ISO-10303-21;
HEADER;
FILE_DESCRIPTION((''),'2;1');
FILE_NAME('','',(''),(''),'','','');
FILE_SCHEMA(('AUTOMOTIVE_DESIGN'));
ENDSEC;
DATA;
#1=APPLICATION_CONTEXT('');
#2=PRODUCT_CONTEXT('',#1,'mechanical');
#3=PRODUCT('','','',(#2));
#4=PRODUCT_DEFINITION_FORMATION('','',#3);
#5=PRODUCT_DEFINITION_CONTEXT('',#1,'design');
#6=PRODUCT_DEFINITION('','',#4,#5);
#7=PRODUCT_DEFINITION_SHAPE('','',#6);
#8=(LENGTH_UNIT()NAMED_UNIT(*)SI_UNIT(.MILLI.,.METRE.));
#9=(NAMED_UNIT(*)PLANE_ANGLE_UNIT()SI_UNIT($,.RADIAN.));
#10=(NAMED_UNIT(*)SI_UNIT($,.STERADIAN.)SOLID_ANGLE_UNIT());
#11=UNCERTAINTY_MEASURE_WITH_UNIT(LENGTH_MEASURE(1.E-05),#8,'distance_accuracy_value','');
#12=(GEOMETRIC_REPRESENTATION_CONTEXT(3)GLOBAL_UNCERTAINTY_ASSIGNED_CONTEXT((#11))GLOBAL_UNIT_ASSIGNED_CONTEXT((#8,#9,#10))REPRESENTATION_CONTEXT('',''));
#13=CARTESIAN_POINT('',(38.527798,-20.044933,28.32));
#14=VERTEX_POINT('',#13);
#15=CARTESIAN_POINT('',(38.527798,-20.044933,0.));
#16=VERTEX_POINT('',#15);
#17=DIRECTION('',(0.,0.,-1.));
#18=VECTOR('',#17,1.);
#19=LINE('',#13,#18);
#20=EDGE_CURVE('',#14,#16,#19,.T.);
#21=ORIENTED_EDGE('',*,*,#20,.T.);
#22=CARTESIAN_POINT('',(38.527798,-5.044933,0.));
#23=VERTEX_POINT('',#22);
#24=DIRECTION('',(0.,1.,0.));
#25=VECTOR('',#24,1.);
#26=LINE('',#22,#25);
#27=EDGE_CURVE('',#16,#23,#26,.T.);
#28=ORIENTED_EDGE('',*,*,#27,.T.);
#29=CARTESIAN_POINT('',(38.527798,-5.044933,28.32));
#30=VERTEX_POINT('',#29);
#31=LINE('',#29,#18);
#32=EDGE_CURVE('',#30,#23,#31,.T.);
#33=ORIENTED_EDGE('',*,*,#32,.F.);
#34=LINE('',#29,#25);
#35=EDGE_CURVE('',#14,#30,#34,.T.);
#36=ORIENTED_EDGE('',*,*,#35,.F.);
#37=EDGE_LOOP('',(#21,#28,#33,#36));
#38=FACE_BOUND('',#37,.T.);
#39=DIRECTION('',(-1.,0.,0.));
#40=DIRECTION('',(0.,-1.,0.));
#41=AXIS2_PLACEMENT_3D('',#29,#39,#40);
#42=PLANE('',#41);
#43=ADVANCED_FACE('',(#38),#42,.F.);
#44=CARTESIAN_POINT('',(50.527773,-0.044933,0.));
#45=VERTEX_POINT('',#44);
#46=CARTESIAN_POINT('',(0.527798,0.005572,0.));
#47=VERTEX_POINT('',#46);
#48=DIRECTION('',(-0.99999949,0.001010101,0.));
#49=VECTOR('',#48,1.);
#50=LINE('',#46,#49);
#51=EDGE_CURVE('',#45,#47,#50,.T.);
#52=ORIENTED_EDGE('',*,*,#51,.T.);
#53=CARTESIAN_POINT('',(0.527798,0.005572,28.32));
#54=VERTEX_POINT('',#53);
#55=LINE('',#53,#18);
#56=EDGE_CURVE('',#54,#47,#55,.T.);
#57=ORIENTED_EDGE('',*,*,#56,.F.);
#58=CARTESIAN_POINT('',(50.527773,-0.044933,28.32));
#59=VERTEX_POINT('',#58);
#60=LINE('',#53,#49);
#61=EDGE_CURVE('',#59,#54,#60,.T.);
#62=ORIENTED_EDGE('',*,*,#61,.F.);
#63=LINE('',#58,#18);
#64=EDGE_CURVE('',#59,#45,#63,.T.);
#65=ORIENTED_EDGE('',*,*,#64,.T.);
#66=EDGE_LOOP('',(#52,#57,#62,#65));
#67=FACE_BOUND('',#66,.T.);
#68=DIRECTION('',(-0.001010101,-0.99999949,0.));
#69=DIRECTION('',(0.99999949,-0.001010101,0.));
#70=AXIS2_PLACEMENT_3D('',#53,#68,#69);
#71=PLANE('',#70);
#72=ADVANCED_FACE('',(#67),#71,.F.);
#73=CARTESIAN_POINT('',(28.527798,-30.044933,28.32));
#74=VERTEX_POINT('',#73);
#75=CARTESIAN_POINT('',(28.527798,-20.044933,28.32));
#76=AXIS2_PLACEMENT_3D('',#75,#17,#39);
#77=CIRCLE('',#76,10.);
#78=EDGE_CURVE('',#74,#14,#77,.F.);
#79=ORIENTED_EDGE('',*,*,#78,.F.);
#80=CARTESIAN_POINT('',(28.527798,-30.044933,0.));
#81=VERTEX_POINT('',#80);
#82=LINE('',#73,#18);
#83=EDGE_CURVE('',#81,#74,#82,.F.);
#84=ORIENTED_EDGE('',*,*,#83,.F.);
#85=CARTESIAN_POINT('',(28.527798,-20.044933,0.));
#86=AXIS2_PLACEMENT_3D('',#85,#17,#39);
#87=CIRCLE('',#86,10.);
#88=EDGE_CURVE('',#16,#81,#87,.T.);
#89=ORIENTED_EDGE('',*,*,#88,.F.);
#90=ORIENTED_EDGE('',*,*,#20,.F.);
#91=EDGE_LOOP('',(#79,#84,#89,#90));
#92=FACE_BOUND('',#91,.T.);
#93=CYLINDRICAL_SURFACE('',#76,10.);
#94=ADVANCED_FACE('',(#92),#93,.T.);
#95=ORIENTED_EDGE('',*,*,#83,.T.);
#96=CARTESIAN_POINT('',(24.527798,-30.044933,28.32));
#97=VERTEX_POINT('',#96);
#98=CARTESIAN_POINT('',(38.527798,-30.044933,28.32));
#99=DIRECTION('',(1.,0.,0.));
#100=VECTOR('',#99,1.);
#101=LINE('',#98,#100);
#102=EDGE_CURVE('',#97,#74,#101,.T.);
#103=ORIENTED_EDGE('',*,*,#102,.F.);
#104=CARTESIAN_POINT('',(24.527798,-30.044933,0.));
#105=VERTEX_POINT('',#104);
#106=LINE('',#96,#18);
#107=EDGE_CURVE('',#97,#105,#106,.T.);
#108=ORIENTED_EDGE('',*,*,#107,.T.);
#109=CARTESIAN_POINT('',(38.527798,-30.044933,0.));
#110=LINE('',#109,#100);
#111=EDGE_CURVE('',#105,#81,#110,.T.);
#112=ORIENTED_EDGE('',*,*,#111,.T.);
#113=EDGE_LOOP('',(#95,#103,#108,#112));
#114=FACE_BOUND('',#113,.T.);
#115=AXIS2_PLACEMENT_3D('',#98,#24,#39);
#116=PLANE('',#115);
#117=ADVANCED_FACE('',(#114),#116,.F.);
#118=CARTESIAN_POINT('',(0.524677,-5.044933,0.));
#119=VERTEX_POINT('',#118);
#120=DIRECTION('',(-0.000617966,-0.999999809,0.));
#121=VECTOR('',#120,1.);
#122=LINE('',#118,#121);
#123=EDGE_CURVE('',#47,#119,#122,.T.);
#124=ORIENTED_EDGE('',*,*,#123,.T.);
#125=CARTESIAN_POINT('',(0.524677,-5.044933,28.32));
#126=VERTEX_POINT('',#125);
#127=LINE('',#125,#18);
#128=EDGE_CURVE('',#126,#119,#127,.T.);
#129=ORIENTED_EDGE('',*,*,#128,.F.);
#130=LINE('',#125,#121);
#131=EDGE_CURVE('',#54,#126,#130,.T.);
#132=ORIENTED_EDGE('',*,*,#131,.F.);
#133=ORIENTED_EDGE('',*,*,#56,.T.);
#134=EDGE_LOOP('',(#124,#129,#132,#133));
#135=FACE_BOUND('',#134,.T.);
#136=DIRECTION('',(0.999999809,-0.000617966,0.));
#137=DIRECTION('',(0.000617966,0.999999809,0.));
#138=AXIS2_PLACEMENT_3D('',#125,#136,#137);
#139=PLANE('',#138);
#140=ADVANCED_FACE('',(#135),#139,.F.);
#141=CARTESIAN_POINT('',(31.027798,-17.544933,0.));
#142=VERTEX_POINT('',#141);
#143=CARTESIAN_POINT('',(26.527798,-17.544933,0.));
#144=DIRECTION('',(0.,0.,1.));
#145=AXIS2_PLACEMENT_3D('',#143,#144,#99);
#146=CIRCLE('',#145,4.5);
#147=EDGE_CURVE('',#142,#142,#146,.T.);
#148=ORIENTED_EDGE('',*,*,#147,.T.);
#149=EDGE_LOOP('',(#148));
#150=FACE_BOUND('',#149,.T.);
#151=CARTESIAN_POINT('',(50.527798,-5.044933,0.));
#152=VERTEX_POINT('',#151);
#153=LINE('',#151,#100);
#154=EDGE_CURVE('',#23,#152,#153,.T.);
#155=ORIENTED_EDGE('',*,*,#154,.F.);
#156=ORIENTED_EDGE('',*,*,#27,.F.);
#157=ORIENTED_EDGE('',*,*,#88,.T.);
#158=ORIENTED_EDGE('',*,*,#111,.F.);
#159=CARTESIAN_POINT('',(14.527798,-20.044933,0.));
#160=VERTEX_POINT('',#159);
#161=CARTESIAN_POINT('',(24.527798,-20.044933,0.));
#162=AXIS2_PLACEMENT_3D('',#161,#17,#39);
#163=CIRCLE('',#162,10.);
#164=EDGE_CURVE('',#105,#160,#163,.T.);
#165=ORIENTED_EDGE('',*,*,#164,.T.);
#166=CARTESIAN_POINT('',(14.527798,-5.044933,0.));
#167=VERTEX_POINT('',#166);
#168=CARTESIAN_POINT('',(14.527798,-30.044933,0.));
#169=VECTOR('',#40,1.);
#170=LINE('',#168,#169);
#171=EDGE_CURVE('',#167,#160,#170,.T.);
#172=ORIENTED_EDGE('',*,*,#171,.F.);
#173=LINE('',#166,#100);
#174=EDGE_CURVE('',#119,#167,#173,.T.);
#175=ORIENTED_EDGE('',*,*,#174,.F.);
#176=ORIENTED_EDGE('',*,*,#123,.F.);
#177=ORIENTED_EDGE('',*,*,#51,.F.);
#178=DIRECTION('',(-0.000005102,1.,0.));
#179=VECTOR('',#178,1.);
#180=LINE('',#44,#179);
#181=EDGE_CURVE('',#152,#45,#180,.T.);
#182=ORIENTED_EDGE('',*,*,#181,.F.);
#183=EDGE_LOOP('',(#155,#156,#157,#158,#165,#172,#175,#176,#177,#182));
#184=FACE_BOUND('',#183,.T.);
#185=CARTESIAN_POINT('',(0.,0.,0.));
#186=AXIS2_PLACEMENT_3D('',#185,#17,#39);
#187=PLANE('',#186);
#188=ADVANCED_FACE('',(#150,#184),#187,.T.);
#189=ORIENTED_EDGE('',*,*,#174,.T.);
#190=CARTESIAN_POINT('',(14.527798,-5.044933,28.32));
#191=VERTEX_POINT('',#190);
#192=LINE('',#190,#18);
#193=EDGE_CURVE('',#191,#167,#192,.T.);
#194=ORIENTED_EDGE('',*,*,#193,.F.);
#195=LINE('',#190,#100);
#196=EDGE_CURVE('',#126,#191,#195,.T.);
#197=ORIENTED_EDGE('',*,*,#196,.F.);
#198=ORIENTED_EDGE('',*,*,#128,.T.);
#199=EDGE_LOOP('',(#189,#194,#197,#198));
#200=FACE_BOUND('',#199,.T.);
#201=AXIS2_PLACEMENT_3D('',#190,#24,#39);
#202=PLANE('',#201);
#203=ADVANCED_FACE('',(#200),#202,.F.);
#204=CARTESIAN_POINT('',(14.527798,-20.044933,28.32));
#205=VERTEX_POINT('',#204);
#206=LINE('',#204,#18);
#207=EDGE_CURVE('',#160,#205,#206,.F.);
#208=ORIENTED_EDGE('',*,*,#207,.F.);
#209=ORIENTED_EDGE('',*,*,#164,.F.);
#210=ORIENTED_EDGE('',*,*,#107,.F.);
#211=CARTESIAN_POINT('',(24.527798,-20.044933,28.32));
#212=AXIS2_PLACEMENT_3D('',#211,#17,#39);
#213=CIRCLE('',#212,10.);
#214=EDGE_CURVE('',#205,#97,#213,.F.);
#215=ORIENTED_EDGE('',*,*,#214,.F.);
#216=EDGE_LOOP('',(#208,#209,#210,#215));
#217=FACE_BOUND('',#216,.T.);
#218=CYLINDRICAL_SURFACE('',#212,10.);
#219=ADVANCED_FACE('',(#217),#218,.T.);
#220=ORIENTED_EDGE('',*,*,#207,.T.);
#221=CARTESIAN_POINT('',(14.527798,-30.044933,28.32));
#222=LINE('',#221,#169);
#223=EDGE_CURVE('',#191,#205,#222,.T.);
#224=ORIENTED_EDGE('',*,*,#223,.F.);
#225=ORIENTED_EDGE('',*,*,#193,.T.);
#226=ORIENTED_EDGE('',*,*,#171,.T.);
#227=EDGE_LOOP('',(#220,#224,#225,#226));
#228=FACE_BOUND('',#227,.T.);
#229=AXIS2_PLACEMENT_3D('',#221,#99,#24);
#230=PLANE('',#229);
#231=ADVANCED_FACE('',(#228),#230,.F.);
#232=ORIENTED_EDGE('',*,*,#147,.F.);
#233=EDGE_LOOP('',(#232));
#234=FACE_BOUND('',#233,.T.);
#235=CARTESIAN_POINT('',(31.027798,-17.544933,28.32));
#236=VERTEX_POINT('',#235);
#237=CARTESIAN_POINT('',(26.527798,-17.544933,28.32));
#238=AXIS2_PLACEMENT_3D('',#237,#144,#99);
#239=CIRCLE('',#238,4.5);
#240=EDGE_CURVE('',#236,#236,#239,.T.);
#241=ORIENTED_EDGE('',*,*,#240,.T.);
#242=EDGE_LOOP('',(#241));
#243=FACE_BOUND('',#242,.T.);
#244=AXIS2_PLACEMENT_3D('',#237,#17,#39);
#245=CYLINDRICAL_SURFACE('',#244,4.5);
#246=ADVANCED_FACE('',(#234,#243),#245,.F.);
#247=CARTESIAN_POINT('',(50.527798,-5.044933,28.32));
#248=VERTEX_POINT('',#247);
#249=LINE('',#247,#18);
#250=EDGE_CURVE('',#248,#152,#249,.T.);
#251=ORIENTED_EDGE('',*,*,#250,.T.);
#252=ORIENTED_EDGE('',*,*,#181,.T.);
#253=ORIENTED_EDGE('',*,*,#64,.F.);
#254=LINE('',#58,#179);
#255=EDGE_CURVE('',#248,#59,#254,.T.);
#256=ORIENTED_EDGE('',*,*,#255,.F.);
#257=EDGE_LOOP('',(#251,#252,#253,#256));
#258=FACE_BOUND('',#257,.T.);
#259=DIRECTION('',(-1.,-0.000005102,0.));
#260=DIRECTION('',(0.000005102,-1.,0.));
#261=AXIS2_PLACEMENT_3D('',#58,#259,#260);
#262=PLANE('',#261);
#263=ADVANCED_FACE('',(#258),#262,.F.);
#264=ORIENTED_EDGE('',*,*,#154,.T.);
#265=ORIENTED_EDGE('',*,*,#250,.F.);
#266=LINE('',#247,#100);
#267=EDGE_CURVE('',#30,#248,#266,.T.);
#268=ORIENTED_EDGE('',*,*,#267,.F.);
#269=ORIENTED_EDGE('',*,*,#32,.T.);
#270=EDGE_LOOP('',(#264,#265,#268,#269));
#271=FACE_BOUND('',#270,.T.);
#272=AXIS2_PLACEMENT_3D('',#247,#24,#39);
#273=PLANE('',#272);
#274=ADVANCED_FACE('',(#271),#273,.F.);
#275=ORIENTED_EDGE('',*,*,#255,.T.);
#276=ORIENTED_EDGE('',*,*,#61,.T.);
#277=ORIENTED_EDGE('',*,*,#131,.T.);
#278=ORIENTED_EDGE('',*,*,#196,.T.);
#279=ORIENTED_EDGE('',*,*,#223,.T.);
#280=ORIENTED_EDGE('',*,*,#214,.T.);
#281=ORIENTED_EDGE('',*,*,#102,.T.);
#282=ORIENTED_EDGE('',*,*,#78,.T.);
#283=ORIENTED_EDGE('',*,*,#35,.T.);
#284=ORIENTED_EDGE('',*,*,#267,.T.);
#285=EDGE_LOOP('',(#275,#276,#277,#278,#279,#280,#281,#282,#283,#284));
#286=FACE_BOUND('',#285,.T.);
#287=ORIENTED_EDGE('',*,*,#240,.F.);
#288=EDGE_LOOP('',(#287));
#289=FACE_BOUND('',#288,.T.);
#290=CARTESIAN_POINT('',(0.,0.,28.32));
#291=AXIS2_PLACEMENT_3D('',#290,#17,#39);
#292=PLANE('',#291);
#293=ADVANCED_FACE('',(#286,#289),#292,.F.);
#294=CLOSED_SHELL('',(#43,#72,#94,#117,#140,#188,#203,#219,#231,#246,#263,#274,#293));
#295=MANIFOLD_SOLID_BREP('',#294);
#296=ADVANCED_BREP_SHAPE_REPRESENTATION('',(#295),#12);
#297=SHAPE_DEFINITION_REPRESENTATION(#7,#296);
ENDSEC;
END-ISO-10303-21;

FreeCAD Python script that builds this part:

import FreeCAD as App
import Part
import Sketcher
from FreeCAD import Vector
Q = App.Units.Quantity


def edges_at(feature, points):
    """Names of the edges that pass closest to the given points."""
    edges = feature.Shape.Edges
    near = lambda p: min(range(len(edges)), key=lambda i: edges[i].distToShape(Part.Vertex(*p))[0])
    return sorted({f"Edge{near(p) + 1}" for p in points})


def add_polygon(sketch, points):
    """Adds a closed chain of lines whose ends are joined by coincident constraints."""
    first, n = sketch.GeometryCount, len(points)
    for a, b in zip(points, points[1:] + points[:1]):
        sketch.addGeometry(Part.LineSegment(App.Vector(*a, 0), App.Vector(*b, 0)), False)
    for i in range(n):
        sketch.addConstraint(Sketcher.Constraint("Coincident", first + i, 2, first + (i + 1) % n, 1))

doc = App.newDocument("Part")
body = doc.addObject("PartDesign::Body", "Body")

sketch1 = body.newObject("Sketcher::SketchObject", "Sketch")
sketch1.AttachmentSupport = (doc.getObject("XY_Plane"), [""])
sketch1.MapMode = "FlatFace"
add_polygon(sketch1, [(50.5, 0), (0.5, 0), (0.5, -5), (14.5, -5), (14.5, -30), (38.5, -30), (38.5, -5), (50.5, -5)])
sketch1.addGeometry(Part.Circle(Vector(26.5, -17.5, 0), Vector(0, 0, 1), 4.5), False)
sketch1.addConstraint([
    Sketcher.Constraint("Horizontal", 2),
    Sketcher.Constraint("Vertical", 3),
    Sketcher.Constraint("Horizontal", 4),
    Sketcher.Constraint("Vertical", 5),
    Sketcher.Constraint("Horizontal", 6),
    Sketcher.Constraint("Horizontal", 2, 2, 5, 2),
    Sketcher.Constraint("Diameter", 8, Q("9 mm")),
    Sketcher.Constraint("DistanceX", 4, 1, 4, 2, Q("24 mm")),
    Sketcher.Constraint("DistanceX", 6, 1, 6, 2, Q("12 mm")),
    Sketcher.Constraint("DistanceY", 3, 2, 3, 1, Q("25 mm")),
    Sketcher.Constraint("Distance", 0, Q("50 mm")),
    Sketcher.Constraint("Distance", 7, Q("5 mm")),
    Sketcher.Constraint("DistanceX", 0, 2, 8, 3, Q("26 mm")),
    Sketcher.Constraint("DistanceX", 0, 2, 2, 2, Q("14 mm")),
    Sketcher.Constraint("DistanceY", 8, 3, 1, 2, Q("12.5 mm")),
    Sketcher.Constraint("DistanceX", 2, 1, 2, 2, Q("14.003121 mm")),
    Sketcher.Constraint("DistanceX", -1, 1, 8, 3, Q("26.527798 mm")),
    Sketcher.Constraint("Distance", 1, Q("5.050506 mm")),
    Sketcher.Constraint("DistanceY", 8, 3, -1, 1, Q("17.544933 mm")),
])
pad1 = body.newObject("PartDesign::Pad", "Pad")
pad1.Profile = sketch1
pad1.Length = 28.32
doc.recompute()

fillet = body.newObject("PartDesign::Fillet", "Fillet")
fillet.Base = (pad1, edges_at(pad1, [(38.528, -30.045, 14.16), (14.528, -30.045, 14.16)]))
fillet.Radius = 10

doc.recompute()
